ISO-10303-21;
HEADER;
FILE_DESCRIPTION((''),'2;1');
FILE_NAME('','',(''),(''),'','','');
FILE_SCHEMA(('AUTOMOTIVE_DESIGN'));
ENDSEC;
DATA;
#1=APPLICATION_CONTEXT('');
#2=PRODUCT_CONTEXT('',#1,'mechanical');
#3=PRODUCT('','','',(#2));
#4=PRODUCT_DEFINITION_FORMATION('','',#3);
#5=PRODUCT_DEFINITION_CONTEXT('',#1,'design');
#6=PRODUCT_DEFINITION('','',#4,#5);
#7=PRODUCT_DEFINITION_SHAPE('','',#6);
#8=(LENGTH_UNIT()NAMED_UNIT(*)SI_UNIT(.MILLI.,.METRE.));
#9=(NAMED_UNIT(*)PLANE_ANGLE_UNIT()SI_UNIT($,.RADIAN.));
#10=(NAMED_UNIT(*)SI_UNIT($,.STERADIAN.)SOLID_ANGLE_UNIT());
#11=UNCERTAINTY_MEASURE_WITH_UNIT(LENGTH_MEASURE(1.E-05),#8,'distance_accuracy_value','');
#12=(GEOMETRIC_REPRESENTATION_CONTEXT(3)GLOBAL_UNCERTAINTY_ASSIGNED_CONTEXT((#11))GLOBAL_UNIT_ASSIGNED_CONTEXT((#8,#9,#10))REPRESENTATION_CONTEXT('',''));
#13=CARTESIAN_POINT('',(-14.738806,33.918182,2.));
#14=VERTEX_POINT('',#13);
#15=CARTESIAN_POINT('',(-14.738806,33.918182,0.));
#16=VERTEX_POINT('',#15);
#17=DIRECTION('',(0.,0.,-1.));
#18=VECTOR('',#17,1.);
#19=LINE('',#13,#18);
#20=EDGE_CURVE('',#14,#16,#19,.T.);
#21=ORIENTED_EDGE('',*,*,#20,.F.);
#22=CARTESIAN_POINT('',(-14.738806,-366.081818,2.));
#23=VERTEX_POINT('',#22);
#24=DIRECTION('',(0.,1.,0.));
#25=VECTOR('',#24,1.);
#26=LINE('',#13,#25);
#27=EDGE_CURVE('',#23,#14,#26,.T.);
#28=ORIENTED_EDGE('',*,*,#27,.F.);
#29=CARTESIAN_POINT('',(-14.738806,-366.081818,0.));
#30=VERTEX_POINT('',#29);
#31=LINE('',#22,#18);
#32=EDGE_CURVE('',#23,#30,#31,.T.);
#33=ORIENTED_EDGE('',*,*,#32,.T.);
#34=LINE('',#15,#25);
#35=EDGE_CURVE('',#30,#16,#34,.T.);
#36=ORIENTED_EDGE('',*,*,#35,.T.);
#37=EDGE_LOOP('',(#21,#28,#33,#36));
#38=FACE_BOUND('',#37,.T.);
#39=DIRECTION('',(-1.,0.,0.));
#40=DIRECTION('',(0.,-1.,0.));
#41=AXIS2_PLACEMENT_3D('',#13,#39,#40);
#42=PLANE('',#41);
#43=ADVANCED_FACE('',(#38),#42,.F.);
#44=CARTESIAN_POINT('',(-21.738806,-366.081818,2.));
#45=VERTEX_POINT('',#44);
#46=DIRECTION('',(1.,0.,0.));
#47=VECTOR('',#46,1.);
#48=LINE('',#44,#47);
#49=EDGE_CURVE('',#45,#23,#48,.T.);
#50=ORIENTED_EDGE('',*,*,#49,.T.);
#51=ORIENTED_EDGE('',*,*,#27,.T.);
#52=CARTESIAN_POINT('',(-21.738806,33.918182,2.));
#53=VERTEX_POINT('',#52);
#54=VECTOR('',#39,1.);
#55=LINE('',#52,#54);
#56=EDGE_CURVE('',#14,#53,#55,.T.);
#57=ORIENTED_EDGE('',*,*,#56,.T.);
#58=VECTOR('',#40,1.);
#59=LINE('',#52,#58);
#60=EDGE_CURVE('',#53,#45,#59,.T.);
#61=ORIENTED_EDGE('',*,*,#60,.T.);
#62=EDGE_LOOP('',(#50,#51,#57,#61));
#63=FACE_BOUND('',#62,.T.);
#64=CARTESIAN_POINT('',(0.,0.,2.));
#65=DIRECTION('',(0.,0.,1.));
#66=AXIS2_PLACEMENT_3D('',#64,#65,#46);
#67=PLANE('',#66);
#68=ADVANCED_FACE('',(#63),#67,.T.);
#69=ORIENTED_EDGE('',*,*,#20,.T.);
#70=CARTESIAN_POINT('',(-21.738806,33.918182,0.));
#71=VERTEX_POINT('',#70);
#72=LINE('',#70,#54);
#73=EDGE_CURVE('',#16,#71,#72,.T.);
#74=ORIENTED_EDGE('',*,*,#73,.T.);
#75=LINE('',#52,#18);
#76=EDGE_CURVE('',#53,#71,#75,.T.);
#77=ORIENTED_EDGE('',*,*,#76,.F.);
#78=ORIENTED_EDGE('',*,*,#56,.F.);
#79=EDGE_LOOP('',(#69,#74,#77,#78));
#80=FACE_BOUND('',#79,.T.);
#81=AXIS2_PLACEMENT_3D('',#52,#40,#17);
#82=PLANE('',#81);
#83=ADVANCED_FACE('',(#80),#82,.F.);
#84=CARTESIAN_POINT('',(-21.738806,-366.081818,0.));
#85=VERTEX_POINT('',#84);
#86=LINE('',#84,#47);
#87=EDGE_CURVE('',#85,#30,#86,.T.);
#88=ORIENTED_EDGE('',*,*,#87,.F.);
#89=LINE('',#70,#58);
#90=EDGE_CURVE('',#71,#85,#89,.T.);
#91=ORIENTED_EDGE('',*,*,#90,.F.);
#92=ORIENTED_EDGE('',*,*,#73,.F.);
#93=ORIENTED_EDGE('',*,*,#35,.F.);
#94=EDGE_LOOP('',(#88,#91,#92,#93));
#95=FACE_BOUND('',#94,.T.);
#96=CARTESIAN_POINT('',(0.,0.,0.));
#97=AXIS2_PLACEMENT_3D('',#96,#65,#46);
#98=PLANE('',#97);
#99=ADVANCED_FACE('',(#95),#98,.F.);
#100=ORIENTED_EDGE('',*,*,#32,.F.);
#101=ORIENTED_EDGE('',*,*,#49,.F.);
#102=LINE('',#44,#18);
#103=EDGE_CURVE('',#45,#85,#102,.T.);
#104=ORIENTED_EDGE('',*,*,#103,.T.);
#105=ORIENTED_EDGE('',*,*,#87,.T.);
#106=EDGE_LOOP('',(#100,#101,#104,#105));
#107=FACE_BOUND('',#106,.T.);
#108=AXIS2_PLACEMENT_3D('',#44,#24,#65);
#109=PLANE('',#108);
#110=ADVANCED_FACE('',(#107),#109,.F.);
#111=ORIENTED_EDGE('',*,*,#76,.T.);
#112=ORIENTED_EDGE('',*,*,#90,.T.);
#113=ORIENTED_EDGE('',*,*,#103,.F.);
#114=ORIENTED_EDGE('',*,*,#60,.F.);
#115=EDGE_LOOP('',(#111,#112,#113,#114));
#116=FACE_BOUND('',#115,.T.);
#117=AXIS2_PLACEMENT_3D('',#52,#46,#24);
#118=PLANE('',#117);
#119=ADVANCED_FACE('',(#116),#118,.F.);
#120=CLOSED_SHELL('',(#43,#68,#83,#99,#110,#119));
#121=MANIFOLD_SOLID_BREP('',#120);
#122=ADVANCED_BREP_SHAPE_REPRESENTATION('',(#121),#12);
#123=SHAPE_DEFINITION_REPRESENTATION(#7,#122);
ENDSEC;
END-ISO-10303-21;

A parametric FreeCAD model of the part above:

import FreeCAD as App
import Part
import Sketcher
Q = App.Units.Quantity


def add_polygon(sketch, points):
    """Adds a closed chain of lines whose ends are joined by coincident constraints."""
    first, n = sketch.GeometryCount, len(points)
    for a, b in zip(points, points[1:] + points[:1]):
        sketch.addGeometry(Part.LineSegment(App.Vector(*a, 0), App.Vector(*b, 0)), False)
    for i in range(n):
        sketch.addConstraint(Sketcher.Constraint("Coincident", first + i, 2, first + (i + 1) % n, 1))

doc = App.newDocument("Part")
body = doc.addObject("PartDesign::Body", "Body")

# Sketch on XY plane
sketch1 = body.newObject("Sketcher::SketchObject", "Sketch")
sketch1.AttachmentSupport = (doc.getObject("XY_Plane"), [""])
sketch1.MapMode = "FlatFace"
add_polygon(sketch1, [(-22, 34), (-22, -366), (-15, -366), (-15, 34)])  # lines 0-3
sketch1.addConstraint([
    Sketcher.Constraint("Vertical", 0),
    Sketcher.Constraint("Horizontal", 1),
    Sketcher.Constraint("Vertical", 2),
    Sketcher.Constraint("Horizontal", 3),
    Sketcher.Constraint("DistanceX", 1, 1, 1, 2, Q("7 mm")),
    Sketcher.Constraint("DistanceY", 0, 2, 0, 1, Q("400 mm")),
    Sketcher.Constraint("DistanceY", 0, 2, -1, 1, Q("366.081818 mm")),
    Sketcher.Constraint("DistanceX", 0, 2, -1, 1, Q("21.738806 mm")),
])
pad1 = body.newObject("PartDesign::Pad", "Pad")
pad1.Profile = sketch1
pad1.Length = 2

doc.recompute()
